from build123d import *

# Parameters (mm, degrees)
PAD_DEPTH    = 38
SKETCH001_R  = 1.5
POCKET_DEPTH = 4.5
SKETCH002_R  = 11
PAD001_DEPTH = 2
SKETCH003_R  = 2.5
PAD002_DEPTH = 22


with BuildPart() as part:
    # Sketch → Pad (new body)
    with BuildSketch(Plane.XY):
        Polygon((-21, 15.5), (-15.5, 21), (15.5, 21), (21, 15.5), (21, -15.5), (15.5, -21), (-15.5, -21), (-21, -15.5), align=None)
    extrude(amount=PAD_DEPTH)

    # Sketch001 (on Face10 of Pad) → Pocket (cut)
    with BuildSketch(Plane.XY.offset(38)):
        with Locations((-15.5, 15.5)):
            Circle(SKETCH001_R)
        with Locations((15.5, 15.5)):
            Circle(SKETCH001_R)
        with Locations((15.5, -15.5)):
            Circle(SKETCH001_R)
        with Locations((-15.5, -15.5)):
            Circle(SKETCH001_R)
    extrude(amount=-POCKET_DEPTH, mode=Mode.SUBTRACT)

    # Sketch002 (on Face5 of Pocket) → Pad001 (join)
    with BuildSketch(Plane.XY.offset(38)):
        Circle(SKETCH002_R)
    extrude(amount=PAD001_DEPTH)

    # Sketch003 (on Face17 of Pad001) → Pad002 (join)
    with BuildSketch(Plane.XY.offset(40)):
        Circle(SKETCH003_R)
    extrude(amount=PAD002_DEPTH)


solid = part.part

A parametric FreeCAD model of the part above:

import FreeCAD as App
import Part
import Sketcher

V = App.Vector

doc = App.newDocument("Part")
body = doc.addObject("PartDesign::Body", "Body")

sketch1 = doc.addObject("Sketcher::SketchObject", "Sketch")
body.addObject(sketch1)
sketch1.AttachmentSupport = (doc.XY_Plane, [""])
sketch1.MapMode = "FlatFace"
sketch1.addGeometry(Part.LineSegment(V(-15.5, 21, 0), V(-21, 15.5, 0)), False)
sketch1.addGeometry(Part.LineSegment(V(-21, 15.5, 0), V(-21, -15.5, 0)), False)
sketch1.addGeometry(Part.LineSegment(V(-21, -15.5, 0), V(-15.5, -21, 0)), False)
sketch1.addGeometry(Part.LineSegment(V(-15.5, -21, 0), V(15.5, -21, 0)), False)
sketch1.addGeometry(Part.LineSegment(V(15.5, -21, 0), V(21, -15.5, 0)), False)
sketch1.addGeometry(Part.LineSegment(V(21, -15.5, 0), V(21, 15.5, 0)), False)
sketch1.addGeometry(Part.LineSegment(V(21, 15.5, 0), V(15.5, 21, 0)), False)
sketch1.addGeometry(Part.LineSegment(V(15.5, 21, 0), V(-15.5, 21, 0)), False)
sketch1.addConstraint(Sketcher.Constraint("Coincident", 0, 2, 1, 1))
sketch1.addConstraint(Sketcher.Constraint("Coincident", 1, 2, 2, 1))
sketch1.addConstraint(Sketcher.Constraint("Coincident", 2, 2, 3, 1))
sketch1.addConstraint(Sketcher.Constraint("Coincident", 3, 2, 4, 1))
sketch1.addConstraint(Sketcher.Constraint("Coincident", 4, 2, 5, 1))
sketch1.addConstraint(Sketcher.Constraint("Coincident", 5, 2, 6, 1))
sketch1.addConstraint(Sketcher.Constraint("Coincident", 6, 2, 7, 1))
sketch1.addConstraint(Sketcher.Constraint("Coincident", 7, 2, 0, 1))
sketch1.addConstraint(Sketcher.Constraint("Vertical", 1))
sketch1.addConstraint(Sketcher.Constraint("Horizontal", 3))
sketch1.addConstraint(Sketcher.Constraint("Vertical", 5))
sketch1.addConstraint(Sketcher.Constraint("Horizontal", 7))
sketch1.addConstraint(Sketcher.Constraint("Symmetric", 0, 2, 4, 2, -1, 1))
sketch1.addConstraint(Sketcher.Constraint("Symmetric", 2, 2, 6, 2, -1, 1))
sketch1.addConstraint(Sketcher.Constraint("Perpendicular", 0, 2))
sketch1.addConstraint(Sketcher.Constraint("Perpendicular", 2, 4))
sketch1.addConstraint(Sketcher.Constraint("Perpendicular", 4, 6))
sketch1.addConstraint(Sketcher.Constraint("Horizontal", 1, 2, 4, 2))
sketch1.addConstraint(Sketcher.Constraint("Vertical", 3, 2, 6, 2))
sketch1.addConstraint(Sketcher.Constraint("Equal", 7, 1))
sketch1.addConstraint(Sketcher.Constraint("DistanceX", 3, 1, 3, 2, 31.0))
sketch1.addConstraint(Sketcher.Constraint("DistanceX", 0, 2, -1, 1, 21.0))
pad1 = doc.addObject("PartDesign::Pad", "Pad")
body.addObject(pad1)
pad1.Profile = sketch1
pad1.Length = 38

sketch2 = doc.addObject("Sketcher::SketchObject", "Sketch001")
body.addObject(sketch2)
sketch2.AttachmentSupport = (doc.XY_Plane, [""])
sketch2.MapMode = "FlatFace"
sketch2.AttachmentOffset = App.Placement(V(0, 0, 38), App.Rotation())
sketch2.addGeometry(Part.Circle(V(-15.5, 15.5, 0), V(0, 0, 1), 1.5), False)
sketch2.addGeometry(Part.Circle(V(15.5, 15.5, 0), V(0, 0, 1), 1.5), False)
sketch2.addGeometry(Part.Circle(V(15.5, -15.5, 0), V(0, 0, 1), 1.5), False)
sketch2.addGeometry(Part.Circle(V(-15.5, -15.5, 0), V(0, 0, 1), 1.5), False)
sketch2.addConstraint(Sketcher.Constraint("Equal", 0, 1))
sketch2.addConstraint(Sketcher.Constraint("Equal", 1, 2))
sketch2.addConstraint(Sketcher.Constraint("Equal", 2, 3))
sketch2.addConstraint(Sketcher.Constraint("Symmetric", 0, 3, 2, 3, -1, 1))
sketch2.addConstraint(Sketcher.Constraint("Symmetric", 1, 3, 3, 3, -1, 1))
sketch2.addConstraint(Sketcher.Constraint("Symmetric", 0, 3, 1, 3, -2))
sketch2.addConstraint(Sketcher.Constraint("Diameter", 0, 3.0))
sketch2.addConstraint(Sketcher.Constraint("DistanceX", 0, 3, 1, 3, 31.0))
sketch2.addConstraint(Sketcher.Constraint("DistanceY", 2, 3, 1, 3, 31.0))
pocket1 = doc.addObject("PartDesign::Pocket", "Pocket")
body.addObject(pocket1)
pocket1.Profile = sketch2
pocket1.Length = 4.5

sketch3 = doc.addObject("Sketcher::SketchObject", "Sketch002")
body.addObject(sketch3)
sketch3.AttachmentSupport = (doc.XY_Plane, [""])
sketch3.MapMode = "FlatFace"
sketch3.AttachmentOffset = App.Placement(V(0, 0, 38), App.Rotation())
sketch3.addGeometry(Part.Circle(V(0, 0, 0), V(0, 0, 1), 11), False)
sketch3.addConstraint(Sketcher.Constraint("Coincident", 0, 3, -1, 1))
sketch3.addConstraint(Sketcher.Constraint("Diameter", 0, 22.0))
pad2 = doc.addObject("PartDesign::Pad", "Pad001")
body.addObject(pad2)
pad2.Profile = sketch3
pad2.Length = 2

sketch4 = doc.addObject("Sketcher::SketchObject", "Sketch003")
body.addObject(sketch4)
sketch4.AttachmentSupport = (doc.XY_Plane, [""])
sketch4.MapMode = "FlatFace"
sketch4.AttachmentOffset = App.Placement(V(0, 0, 40), App.Rotation())
sketch4.addGeometry(Part.Circle(V(0, 0, 0), V(0, 0, 1), 2.5), False)
sketch4.addConstraint(Sketcher.Constraint("Coincident", 0, 3, -1, 1))
sketch4.addConstraint(Sketcher.Constraint("Diameter", 0, 5.0))
pad3 = doc.addObject("PartDesign::Pad", "Pad002")
body.addObject(pad3)
pad3.Profile = sketch4
pad3.Length = 22

doc.recompute()
